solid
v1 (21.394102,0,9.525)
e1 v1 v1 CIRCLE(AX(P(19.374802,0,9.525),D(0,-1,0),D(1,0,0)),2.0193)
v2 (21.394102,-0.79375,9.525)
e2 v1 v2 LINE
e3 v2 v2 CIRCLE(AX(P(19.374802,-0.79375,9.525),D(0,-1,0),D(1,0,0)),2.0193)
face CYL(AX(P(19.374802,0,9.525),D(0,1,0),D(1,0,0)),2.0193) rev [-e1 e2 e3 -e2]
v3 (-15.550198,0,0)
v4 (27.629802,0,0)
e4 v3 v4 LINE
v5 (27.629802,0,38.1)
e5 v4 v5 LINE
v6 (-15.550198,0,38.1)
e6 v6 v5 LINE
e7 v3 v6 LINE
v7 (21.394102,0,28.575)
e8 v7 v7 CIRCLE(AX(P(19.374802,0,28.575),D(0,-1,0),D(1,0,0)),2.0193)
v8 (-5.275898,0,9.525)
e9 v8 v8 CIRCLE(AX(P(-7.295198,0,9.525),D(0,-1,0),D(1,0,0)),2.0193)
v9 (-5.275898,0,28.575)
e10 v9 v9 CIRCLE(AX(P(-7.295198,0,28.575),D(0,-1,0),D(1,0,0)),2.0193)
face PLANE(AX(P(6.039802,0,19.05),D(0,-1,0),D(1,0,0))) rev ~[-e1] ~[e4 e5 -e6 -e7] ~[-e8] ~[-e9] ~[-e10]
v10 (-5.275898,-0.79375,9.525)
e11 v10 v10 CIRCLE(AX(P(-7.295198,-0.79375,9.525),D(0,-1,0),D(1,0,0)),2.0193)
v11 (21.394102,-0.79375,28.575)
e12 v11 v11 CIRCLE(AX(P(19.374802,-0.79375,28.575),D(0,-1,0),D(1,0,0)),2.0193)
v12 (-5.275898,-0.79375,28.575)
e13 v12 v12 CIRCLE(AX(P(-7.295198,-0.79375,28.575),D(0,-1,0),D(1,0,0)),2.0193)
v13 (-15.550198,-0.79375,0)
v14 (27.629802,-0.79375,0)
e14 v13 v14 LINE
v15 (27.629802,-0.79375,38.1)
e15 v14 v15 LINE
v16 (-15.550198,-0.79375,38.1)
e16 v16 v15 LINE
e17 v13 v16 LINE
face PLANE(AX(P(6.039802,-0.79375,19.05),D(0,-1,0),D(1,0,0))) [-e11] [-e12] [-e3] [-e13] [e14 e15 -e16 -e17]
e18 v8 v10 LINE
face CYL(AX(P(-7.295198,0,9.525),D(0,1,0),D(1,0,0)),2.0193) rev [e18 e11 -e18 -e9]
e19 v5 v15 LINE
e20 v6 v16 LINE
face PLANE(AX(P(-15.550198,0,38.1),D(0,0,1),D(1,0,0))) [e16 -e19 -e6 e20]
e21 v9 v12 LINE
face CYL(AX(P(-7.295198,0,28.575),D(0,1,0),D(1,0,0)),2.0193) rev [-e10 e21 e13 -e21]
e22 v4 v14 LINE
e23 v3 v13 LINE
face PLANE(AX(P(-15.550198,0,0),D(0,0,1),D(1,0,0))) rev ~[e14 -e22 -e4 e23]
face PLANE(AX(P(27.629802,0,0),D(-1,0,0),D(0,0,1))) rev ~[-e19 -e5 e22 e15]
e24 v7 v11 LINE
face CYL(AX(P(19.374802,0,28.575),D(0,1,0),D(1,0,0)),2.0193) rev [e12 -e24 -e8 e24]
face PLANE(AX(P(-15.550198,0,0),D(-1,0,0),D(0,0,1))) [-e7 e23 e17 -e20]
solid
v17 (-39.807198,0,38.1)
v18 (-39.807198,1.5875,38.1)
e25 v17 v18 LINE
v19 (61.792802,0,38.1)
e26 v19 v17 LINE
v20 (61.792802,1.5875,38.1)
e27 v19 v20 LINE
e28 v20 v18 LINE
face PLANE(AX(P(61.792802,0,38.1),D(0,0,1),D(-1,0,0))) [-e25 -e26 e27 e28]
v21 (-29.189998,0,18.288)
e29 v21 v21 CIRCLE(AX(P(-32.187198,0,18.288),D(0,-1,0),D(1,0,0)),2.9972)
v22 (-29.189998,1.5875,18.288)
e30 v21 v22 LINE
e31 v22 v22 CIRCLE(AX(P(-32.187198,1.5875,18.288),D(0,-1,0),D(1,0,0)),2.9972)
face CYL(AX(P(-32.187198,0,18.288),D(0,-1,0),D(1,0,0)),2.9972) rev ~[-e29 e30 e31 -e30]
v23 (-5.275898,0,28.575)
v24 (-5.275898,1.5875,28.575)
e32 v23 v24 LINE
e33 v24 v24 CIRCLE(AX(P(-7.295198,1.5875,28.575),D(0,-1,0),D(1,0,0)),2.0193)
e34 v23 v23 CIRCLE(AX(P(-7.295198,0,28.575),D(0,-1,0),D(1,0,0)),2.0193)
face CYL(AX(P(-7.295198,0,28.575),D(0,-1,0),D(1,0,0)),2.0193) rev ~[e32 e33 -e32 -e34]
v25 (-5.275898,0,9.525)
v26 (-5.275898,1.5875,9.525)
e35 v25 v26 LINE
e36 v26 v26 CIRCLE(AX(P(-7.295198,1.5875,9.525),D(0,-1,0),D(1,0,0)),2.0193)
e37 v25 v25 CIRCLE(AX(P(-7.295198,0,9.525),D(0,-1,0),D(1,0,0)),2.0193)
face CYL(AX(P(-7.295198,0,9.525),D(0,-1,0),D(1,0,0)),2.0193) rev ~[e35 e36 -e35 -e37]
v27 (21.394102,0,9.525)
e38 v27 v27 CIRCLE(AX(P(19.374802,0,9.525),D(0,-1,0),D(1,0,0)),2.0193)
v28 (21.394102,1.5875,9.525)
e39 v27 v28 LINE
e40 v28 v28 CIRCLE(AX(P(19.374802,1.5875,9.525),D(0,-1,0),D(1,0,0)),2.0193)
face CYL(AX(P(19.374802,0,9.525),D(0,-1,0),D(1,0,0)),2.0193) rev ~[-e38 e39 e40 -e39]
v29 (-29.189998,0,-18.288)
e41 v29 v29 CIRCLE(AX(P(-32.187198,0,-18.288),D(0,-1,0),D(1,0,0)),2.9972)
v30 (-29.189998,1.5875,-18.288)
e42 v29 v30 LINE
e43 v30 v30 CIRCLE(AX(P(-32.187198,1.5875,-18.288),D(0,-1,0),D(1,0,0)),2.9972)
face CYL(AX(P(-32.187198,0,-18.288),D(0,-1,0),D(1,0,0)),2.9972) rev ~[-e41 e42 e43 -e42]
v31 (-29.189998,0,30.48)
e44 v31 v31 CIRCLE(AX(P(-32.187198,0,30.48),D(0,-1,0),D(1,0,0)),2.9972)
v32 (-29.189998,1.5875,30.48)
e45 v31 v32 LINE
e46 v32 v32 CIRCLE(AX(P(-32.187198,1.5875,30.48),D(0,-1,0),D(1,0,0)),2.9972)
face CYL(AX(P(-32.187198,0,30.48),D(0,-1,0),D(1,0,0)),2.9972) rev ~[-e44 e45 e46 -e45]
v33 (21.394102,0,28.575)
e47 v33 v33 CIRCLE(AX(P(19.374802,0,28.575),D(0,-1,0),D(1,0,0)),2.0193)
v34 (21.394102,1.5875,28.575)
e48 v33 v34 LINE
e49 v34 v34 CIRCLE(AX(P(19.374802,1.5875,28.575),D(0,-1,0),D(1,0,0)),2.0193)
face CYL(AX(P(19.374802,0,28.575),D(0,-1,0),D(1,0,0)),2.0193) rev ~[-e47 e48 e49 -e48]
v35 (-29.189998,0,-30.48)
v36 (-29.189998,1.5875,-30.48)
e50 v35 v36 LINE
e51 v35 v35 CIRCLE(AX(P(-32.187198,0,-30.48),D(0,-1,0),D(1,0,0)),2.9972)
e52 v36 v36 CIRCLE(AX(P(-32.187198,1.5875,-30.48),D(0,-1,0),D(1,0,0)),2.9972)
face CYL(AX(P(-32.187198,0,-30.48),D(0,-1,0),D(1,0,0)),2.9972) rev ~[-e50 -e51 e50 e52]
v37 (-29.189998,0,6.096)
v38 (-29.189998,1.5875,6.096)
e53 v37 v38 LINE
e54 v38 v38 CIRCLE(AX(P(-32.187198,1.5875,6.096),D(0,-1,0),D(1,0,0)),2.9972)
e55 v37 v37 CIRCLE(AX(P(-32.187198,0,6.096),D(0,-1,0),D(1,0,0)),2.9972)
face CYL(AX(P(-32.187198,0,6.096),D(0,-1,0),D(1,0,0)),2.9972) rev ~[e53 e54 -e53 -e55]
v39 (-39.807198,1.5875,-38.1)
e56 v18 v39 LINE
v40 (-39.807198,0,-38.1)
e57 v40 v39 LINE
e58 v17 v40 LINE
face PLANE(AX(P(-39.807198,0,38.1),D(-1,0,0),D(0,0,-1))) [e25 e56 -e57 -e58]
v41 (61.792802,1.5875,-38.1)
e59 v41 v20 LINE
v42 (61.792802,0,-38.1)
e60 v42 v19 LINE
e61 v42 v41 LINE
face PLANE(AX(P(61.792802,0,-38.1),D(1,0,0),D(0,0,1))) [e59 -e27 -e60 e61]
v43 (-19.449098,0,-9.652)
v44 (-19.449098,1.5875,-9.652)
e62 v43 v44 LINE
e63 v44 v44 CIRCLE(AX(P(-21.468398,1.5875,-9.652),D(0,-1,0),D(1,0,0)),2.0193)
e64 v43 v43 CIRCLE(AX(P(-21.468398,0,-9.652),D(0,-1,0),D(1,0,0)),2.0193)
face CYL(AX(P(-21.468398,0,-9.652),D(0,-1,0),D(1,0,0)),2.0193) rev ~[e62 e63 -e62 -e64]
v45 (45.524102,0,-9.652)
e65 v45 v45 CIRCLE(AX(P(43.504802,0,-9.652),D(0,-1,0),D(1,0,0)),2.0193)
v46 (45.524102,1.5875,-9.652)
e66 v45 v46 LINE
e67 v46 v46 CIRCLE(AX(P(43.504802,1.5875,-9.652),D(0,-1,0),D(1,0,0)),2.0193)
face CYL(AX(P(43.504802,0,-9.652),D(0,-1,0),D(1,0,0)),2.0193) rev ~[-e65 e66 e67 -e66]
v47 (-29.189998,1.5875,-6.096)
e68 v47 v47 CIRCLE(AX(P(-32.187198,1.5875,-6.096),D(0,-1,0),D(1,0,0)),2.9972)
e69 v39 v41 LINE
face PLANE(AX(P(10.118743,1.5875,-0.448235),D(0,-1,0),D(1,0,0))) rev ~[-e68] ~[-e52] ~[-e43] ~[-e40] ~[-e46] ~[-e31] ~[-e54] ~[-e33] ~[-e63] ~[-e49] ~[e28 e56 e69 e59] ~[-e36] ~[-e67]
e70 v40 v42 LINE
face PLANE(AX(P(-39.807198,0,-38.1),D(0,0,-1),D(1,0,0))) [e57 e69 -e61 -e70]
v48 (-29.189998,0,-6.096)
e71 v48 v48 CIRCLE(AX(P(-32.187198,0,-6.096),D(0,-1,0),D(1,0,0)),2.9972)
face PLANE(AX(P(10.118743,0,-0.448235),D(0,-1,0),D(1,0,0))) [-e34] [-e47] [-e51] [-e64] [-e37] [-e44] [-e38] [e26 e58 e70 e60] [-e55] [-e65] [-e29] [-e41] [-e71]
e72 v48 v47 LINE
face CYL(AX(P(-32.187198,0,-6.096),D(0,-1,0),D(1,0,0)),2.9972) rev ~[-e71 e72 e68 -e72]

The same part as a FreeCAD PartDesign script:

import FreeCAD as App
import Part
import Sketcher
from FreeCAD import Vector
Q = App.Units.Quantity


def add_polygon(sketch, points):
    """Adds a closed chain of lines whose ends are joined by coincident constraints."""
    first, n = sketch.GeometryCount, len(points)
    for a, b in zip(points, points[1:] + points[:1]):
        sketch.addGeometry(Part.LineSegment(App.Vector(*a, 0), App.Vector(*b, 0)), False)
    for i in range(n):
        sketch.addConstraint(Sketcher.Constraint("Coincident", first + i, 2, first + (i + 1) % n, 1))

doc = App.newDocument("Part")
params = doc.addObject("Spreadsheet::Sheet", "Params")
for row, (alias, value) in enumerate([
    ("sketch1_diameter", "0.159 in"),
    ("sketch1_width", "1.7 in"),
    ("sketch1_height", "1.5 in"),
    ("pad1_length", "0.03125 in"),
    ("sketch2_width", "4 in"),
    ("sketch2_height", "3 in"),
    ("sketch2_diameter", "0.236 in"),
    ("sketch2_diameter2", "0.159 in"),
    ("pad2_length", "0.0625 in"),
], start=1):
    params.set(f"A{row}", alias)
    params.set(f"B{row}", "=" + value)
    params.setAlias(f"B{row}", alias)

body = doc.addObject("PartDesign::Body", "Body")

# Sketch on XZ plane
sketch1 = doc.addObject("Sketcher::SketchObject", "Sketch")
body.addObject(sketch1)
sketch1.AttachmentSupport = (doc.XZ_Plane, [""])
sketch1.MapMode = "FlatFace"
add_polygon(sketch1, [(-15.6, 38.1), (-15.6, 0), (27.6, 0), (27.6, 38.1)])  # lines 0-3
sketch1.addGeometry(Part.Circle(Vector(-7.3, 9.5, 0), Vector(0, 0, 1), 2), False)  # 4
sketch1.addGeometry(Part.Circle(Vector(19.4, 9.5, 0), Vector(0, 0, 1), 2), False)  # 5
sketch1.addGeometry(Part.Circle(Vector(-7.3, 28.6, 0), Vector(0, 0, 1), 2), False)  # 6
sketch1.addGeometry(Part.Circle(Vector(19.4, 28.6, 0), Vector(0, 0, 1), 2), False)  # 7
sketch1.addConstraint([
    Sketcher.Constraint("Vertical", 0),
    Sketcher.Constraint("Horizontal", 1),
    Sketcher.Constraint("Vertical", 2),
    Sketcher.Constraint("Horizontal", 3),
    Sketcher.Constraint("Equal", 4, 5),
    Sketcher.Constraint("Equal", 5, 6),
    Sketcher.Constraint("Equal", 6, 7),
    Sketcher.Constraint("PointOnObject", 0, 2, -1),
    Sketcher.Constraint("Horizontal", 4, 3, 5, 3),
    Sketcher.Constraint("Horizontal", 6, 3, 7, 3),
    Sketcher.Constraint("Vertical", 4, 3, 6, 3),
    Sketcher.Constraint("Vertical", 5, 3, 7, 3),
    Sketcher.Constraint("Diameter", 4, Q("0.159 in")),
    Sketcher.Constraint("DistanceX", 1, 1, 1, 2, Q("1.7 in")),
    Sketcher.Constraint("DistanceY", 0, 2, 0, 1, Q("1.5 in")),
    Sketcher.Constraint("DistanceX", 4, 3, 5, 3, Q("1.05 in")),
    Sketcher.Constraint("DistanceY", 4, 3, 6, 3, Q("0.75 in")),
    Sketcher.Constraint("DistanceY", -1, 1, 4, 3, Q("0.375 in")),
    Sketcher.Constraint("DistanceX", 0, 2, 4, 3, Q("0.325 in")),
    Sketcher.Constraint("DistanceX", -1, 1, 5, 3, Q("19.374802 mm")),
])
sketch1.setExpression("Constraints[16]", "Params.sketch1_diameter")
sketch1.setExpression("Constraints[17]", "Params.sketch1_width")
sketch1.setExpression("Constraints[18]", "Params.sketch1_height")
pad1 = doc.addObject("PartDesign::Pad", "Pad")
body.addObject(pad1)
pad1.Profile = sketch1
pad1.setExpression("Length", "Params.pad1_length")
body2 = doc.addObject("PartDesign::Body", "Body001")

# Sketch on XZ plane
sketch2 = doc.addObject("Sketcher::SketchObject", "Sketch001")
body2.addObject(sketch2)
sketch2.AttachmentSupport = (doc.getObject("XZ_Plane001"), [""])
sketch2.MapMode = "FlatFace"
add_polygon(sketch2, [(-39.8, 38.1), (-39.8, -38.1), (61.8, -38.1), (61.8, 38.1)])  # lines 0-3
sketch2.addGeometry(Part.Circle(Vector(-32.2, -30.5, 0), Vector(0, 0, 1), 3), False)  # 4
sketch2.addGeometry(Part.Circle(Vector(-32.2, -18.3, 0), Vector(0, 0, 1), 3), False)  # 5
sketch2.addGeometry(Part.Circle(Vector(-21.5, -9.7, 0), Vector(0, 0, 1), 2), False)  # 6
sketch2.addGeometry(Part.Circle(Vector(-32.2, -6.1, 0), Vector(0, 0, 1), 3), False)  # 7
sketch2.addGeometry(Part.Circle(Vector(43.5, -9.7, 0), Vector(0, 0, 1), 2), False)  # 8
sketch2.addGeometry(Part.Circle(Vector(-32.2, 6.1, 0), Vector(0, 0, 1), 3), False)  # 9
sketch2.addGeometry(Part.Circle(Vector(-7.3, 9.5, 0), Vector(0, 0, 1), 2), False)  # 10
sketch2.addGeometry(Part.Circle(Vector(-32.2, 18.3, 0), Vector(0, 0, 1), 3), False)  # 11
sketch2.addGeometry(Part.Circle(Vector(-32.2, 30.5, 0), Vector(0, 0, 1), 3), False)  # 12
sketch2.addGeometry(Part.Circle(Vector(-7.3, 28.6, 0), Vector(0, 0, 1), 2), False)  # 13
sketch2.addGeometry(Part.Circle(Vector(19.4, 9.5, 0), Vector(0, 0, 1), 2), False)  # 14
sketch2.addGeometry(Part.Circle(Vector(19.4, 28.6, 0), Vector(0, 0, 1), 2), False)  # 15
sketch2.addConstraint([
    Sketcher.Constraint("Vertical", 0),
    Sketcher.Constraint("Horizontal", 1),
    Sketcher.Constraint("Vertical", 2),
    Sketcher.Constraint("Horizontal", 3),
    Sketcher.Constraint("Equal", 4, 5),
    Sketcher.Constraint("Equal", 5, 7),
    Sketcher.Constraint("Equal", 6, 8),
    Sketcher.Constraint("Equal", 7, 9),
    Sketcher.Constraint("Equal", 8, 10),
    Sketcher.Constraint("Equal", 9, 11),
    Sketcher.Constraint("Equal", 11, 12),
    Sketcher.Constraint("Equal", 10, 13),
    Sketcher.Constraint("Equal", 13, 14),
    Sketcher.Constraint("Equal", 14, 15),
    Sketcher.Constraint("Symmetric", 7, 3, 9, 3, -1),
    Sketcher.Constraint("Symmetric", 5, 3, 11, 3, -1),
    Sketcher.Constraint("Symmetric", 4, 3, 12, 3, -1),
    Sketcher.Constraint("Horizontal", 6, 3, 8, 3),
    Sketcher.Constraint("Horizontal", 10, 3, 14, 3),
    Sketcher.Constraint("Horizontal", 13, 3, 15, 3),
    Sketcher.Constraint("Vertical", 4, 3, 5, 3),
    Sketcher.Constraint("Vertical", 5, 3, 7, 3),
    Sketcher.Constraint("Vertical", 10, 3, 13, 3),
    Sketcher.Constraint("Vertical", 14, 3, 15, 3),
    Sketcher.Constraint("DistanceX", 1, 1, 1, 2, Q("4 in")),
    Sketcher.Constraint("DistanceY", 0, 2, 0, 1, Q("3 in")),
    Sketcher.Constraint("Diameter", 4, Q("0.236 in")),
    Sketcher.Constraint("Diameter", 6, Q("0.159 in")),
    Sketcher.Constraint("DistanceY", 4, 3, -1, 1, Q("1.2 in")),
    Sketcher.Constraint("DistanceY", 0, 2, -1, 1, Q("1.5 in")),
    Sketcher.Constraint("DistanceY", 6, 3, 11, 3, Q("1.1 in")),
    Sketcher.Constraint("DistanceX", 0, 2, 4, 3, Q("0.3 in")),
    Sketcher.Constraint("DistanceY", 5, 3, -1, 1, Q("0.72 in")),
    Sketcher.Constraint("DistanceY", 7, 3, -1, 1, Q("0.24 in")),
    Sketcher.Constraint("DistanceX", 7, 3, 8, 3, Q("2.98 in")),
    Sketcher.Constraint("DistanceX", 9, 3, 10, 3, Q("0.98 in")),
    Sketcher.Constraint("DistanceY", 10, 3, 13, 3, Q("0.75 in")),
    Sketcher.Constraint("DistanceX", 10, 3, 14, 3, Q("1.05 in")),
    Sketcher.Constraint("DistanceY", -1, 1, 10, 3, Q("0.375 in")),
    Sketcher.Constraint("DistanceX", 5, 3, 6, 3, Q("0.422 in")),
    Sketcher.Constraint("DistanceX", 4, 3, -1, 1, Q("32.187198 mm")),
])
sketch2.setExpression("Constraints[28]", "Params.sketch2_width")
sketch2.setExpression("Constraints[29]", "Params.sketch2_height")
sketch2.setExpression("Constraints[30]", "Params.sketch2_diameter")
sketch2.setExpression("Constraints[31]", "Params.sketch2_diameter2")
pad2 = doc.addObject("PartDesign::Pad", "Pad001")
body2.addObject(pad2)
pad2.Profile = sketch2
pad2.setExpression("Length", "Params.pad2_length")
pad2.Reversed = True

doc.recompute()
